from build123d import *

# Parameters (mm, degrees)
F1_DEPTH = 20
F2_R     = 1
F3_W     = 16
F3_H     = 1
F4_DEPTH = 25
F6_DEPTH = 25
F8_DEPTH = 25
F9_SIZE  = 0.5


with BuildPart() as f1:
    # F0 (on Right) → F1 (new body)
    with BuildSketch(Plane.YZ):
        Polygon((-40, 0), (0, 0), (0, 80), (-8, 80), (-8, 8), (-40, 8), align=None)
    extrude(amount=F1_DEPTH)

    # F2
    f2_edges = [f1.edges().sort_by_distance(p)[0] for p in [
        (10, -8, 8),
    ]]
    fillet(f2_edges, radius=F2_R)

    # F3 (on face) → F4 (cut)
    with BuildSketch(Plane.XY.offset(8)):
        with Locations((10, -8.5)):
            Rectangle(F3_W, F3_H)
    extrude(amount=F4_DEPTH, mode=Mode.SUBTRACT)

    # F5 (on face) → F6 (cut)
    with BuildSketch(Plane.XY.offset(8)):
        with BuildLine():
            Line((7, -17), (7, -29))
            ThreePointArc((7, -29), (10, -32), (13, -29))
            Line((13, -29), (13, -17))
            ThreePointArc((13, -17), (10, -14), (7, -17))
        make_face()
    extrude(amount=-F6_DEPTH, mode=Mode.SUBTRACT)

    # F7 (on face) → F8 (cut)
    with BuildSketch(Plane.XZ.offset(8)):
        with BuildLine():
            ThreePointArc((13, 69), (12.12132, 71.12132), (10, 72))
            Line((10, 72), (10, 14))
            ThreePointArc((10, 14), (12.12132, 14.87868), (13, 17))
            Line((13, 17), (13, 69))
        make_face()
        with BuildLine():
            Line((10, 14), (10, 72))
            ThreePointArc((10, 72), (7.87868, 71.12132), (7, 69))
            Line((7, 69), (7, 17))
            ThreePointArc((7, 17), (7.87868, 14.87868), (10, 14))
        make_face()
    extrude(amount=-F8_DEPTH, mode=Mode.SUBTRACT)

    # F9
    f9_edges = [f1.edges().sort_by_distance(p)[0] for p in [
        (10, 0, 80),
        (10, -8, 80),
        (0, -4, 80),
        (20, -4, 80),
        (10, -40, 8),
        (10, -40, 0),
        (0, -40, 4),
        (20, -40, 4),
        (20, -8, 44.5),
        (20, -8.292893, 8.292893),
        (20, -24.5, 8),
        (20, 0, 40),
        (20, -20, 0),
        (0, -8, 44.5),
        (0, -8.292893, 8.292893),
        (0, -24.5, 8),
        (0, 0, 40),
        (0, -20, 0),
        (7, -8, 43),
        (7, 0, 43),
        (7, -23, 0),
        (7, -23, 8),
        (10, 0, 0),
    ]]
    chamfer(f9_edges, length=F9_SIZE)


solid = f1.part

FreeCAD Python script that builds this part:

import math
import FreeCAD as App
import Part
import Sketcher

V = App.Vector
Q = App.Units.Quantity


def edges_at(feature, points):
    """Names of the edges that pass closest to the given points."""
    edges = feature.Shape.Edges
    near = lambda p: min(range(len(edges)), key=lambda i: edges[i].distToShape(Part.Vertex(*p))[0])
    return sorted({f"Edge{near(p) + 1}" for p in points})

doc = App.newDocument("Part")
body = doc.addObject("PartDesign::Body", "Body")

sketch1 = doc.addObject("Sketcher::SketchObject", "Sketch")
body.addObject(sketch1)
sketch1.AttachmentSupport = (doc.YZ_Plane, [""])
sketch1.MapMode = "FlatFace"
sketch1.addGeometry([
    Part.LineSegment(V(-40, 0, 0), V(0, 0, 0)),
    Part.LineSegment(V(0, 0, 0), V(0, 80, 0)),
    Part.LineSegment(V(0, 80, 0), V(-8, 80, 0)),
    Part.LineSegment(V(-8, 80, 0), V(-8, 8, 0)),
    Part.LineSegment(V(-8, 8, 0), V(-40, 8, 0)),
    Part.LineSegment(V(-40, 8, 0), V(-40, 0, 0)),
], False)
sketch1.addConstraint([
    Sketcher.Constraint("Coincident", 0, 2, 1, 1),
    Sketcher.Constraint("Coincident", 1, 2, 2, 1),
    Sketcher.Constraint("Coincident", 2, 2, 3, 1),
    Sketcher.Constraint("Coincident", 3, 2, 4, 1),
    Sketcher.Constraint("Coincident", 4, 2, 5, 1),
    Sketcher.Constraint("Coincident", 5, 2, 0, 1),
    Sketcher.Constraint("Horizontal", 0),
    Sketcher.Constraint("Vertical", 1),
    Sketcher.Constraint("Horizontal", 2),
    Sketcher.Constraint("Vertical", 3),
    Sketcher.Constraint("Horizontal", 4),
    Sketcher.Constraint("Vertical", 5),
    Sketcher.Constraint("Coincident", 0, 2, -1, 1),
    Sketcher.Constraint("Equal", 2, 5),
    Sketcher.Constraint("DistanceX", 0, 1, 0, 2, Q("40 mm")),
    Sketcher.Constraint("DistanceX", 2, 2, 2, 1, Q("8 mm")),
    Sketcher.Constraint("DistanceY", 1, 1, 1, 2, Q("80 mm")),
])
pad1 = doc.addObject("PartDesign::Pad", "Pad")
body.addObject(pad1)
pad1.Profile = sketch1
pad1.Length = 20
doc.recompute()

fillet = doc.addObject("PartDesign::Fillet", "Fillet")
body.addObject(fillet)
fillet.Base = (pad1, edges_at(pad1, [(10, -8, 8)]))
fillet.Radius = 1

sketch2 = doc.addObject("Sketcher::SketchObject", "Sketch001")
body.addObject(sketch2)
sketch2.AttachmentSupport = (doc.XY_Plane, [""])
sketch2.MapMode = "FlatFace"
sketch2.AttachmentOffset = App.Placement(V(0, 0, 8), App.Rotation())
sketch2.addGeometry([
    Part.LineSegment(V(2, -8, 0), V(2, -9, 0)),
    Part.LineSegment(V(2, -9, 0), V(18, -9, 0)),
    Part.LineSegment(V(18, -9, 0), V(18, -8, 0)),
    Part.LineSegment(V(18, -8, 0), V(2, -8, 0)),
], False)
sketch2.addConstraint([
    Sketcher.Constraint("Coincident", 0, 2, 1, 1),
    Sketcher.Constraint("Coincident", 1, 2, 2, 1),
    Sketcher.Constraint("Coincident", 2, 2, 3, 1),
    Sketcher.Constraint("Coincident", 3, 2, 0, 1),
    Sketcher.Constraint("Vertical", 0),
    Sketcher.Constraint("Horizontal", 1),
    Sketcher.Constraint("Vertical", 2),
    Sketcher.Constraint("Horizontal", 3),
    Sketcher.Constraint("DistanceX", 1, 1, 1, 2, Q("16 mm")),
    Sketcher.Constraint("DistanceY", 0, 2, 0, 1, Q("1 mm")),
    Sketcher.Constraint("DistanceX", -1, 1, 0, 2, Q("2 mm")),
    Sketcher.Constraint("DistanceY", 0, 2, -1, 1, Q("9 mm")),
])
pocket1 = doc.addObject("PartDesign::Pocket", "Pocket")
body.addObject(pocket1)
pocket1.Profile = sketch2
pocket1.Length = 25
pocket1.Reversed = True

sketch3 = doc.addObject("Sketcher::SketchObject", "Sketch002")
body.addObject(sketch3)
sketch3.AttachmentSupport = (doc.XY_Plane, [""])
sketch3.MapMode = "FlatFace"
sketch3.AttachmentOffset = App.Placement(V(0, 0, 8), App.Rotation())
sketch3.addGeometry([
    Part.LineSegment(V(7, -17, 0), V(7, -29, 0)),
    Part.ArcOfCircle(Part.Circle(V(10, -29, 0), V(0, 0, 1), 3), math.radians(180), math.radians(360)),
    Part.LineSegment(V(13, -29, 0), V(13, -17, 0)),
    Part.ArcOfCircle(Part.Circle(V(10, -17, 0), V(0, 0, 1), 3), math.radians(0), math.radians(180)),
], False)
sketch3.addConstraint([
    Sketcher.Constraint("Tangent", 0, 2, 1, 1),
    Sketcher.Constraint("Tangent", 1, 2, 2, 1),
    Sketcher.Constraint("Tangent", 2, 2, 3, 1),
    Sketcher.Constraint("Tangent", 3, 2, 0, 1),
    Sketcher.Constraint("Vertical", 0),
    Sketcher.Constraint("Vertical", 2),
    Sketcher.Constraint("Radius", 1, Q("3 mm")),
    Sketcher.Constraint("DistanceY", 0, 2, 0, 1, Q("12 mm")),
    Sketcher.Constraint("DistanceX", -1, 1, 1, 3, Q("10 mm")),
    Sketcher.Constraint("DistanceY", 1, 3, -1, 1, Q("29 mm")),
])
pocket2 = doc.addObject("PartDesign::Pocket", "Pocket001")
body.addObject(pocket2)
pocket2.Profile = sketch3
pocket2.Length = 25

sketch4 = doc.addObject("Sketcher::SketchObject", "Sketch003")
body.addObject(sketch4)
sketch4.AttachmentSupport = (doc.XZ_Plane, [""])
sketch4.MapMode = "FlatFace"
sketch4.AttachmentOffset = App.Placement(V(0, 0, 8), App.Rotation())
sketch4.addGeometry([
    Part.ArcOfCircle(Part.Circle(V(9.999999, 68.999999, 0), V(0, 0, 1), 3.000001), math.radians(0.000022), math.radians(89.999978)),
    Part.ArcOfCircle(Part.Circle(V(10.000001, 68.999999, 0), V(0, 0, 1), 3.000001), math.radians(90.000022), math.radians(179.999978)),
    Part.LineSegment(V(7, 69, 0), V(7, 17, 0)),
    Part.ArcOfCircle(Part.Circle(V(10.000001, 17.000001, 0), V(0, 0, 1), 3.000001), math.radians(-179.999978), math.radians(-90.000022)),
    Part.ArcOfCircle(Part.Circle(V(9.999999, 17.000001, 0), V(0, 0, 1), 3.000001), math.radians(-89.999978), math.radians(-0.000022)),
    Part.LineSegment(V(13, 17, 0), V(13, 69, 0)),
], False)
sketch4.addConstraint([
    Sketcher.Constraint("Tangent", 0, 2, 1, 1),
    Sketcher.Constraint("Tangent", 1, 2, 2, 1),
    Sketcher.Constraint("Tangent", 2, 2, 3, 1),
    Sketcher.Constraint("Tangent", 3, 2, 4, 1),
    Sketcher.Constraint("Tangent", 4, 2, 5, 1),
    Sketcher.Constraint("Tangent", 5, 2, 0, 1),
    Sketcher.Constraint("Vertical", 2),
    Sketcher.Constraint("Vertical", 5),
    Sketcher.Constraint("Equal", 0, 1),
    Sketcher.Constraint("Equal", 1, 3),
    Sketcher.Constraint("Vertical", 4, 3, 0, 2),
    Sketcher.Constraint("Vertical", 0, 2, 3, 2),
    Sketcher.Constraint("Radius", 0, Q("3.000001 mm")),
    Sketcher.Constraint("DistanceY", 2, 2, 2, 1, Q("52 mm")),
    Sketcher.Constraint("DistanceX", -1, 1, 0, 3, Q("9.999999 mm")),
    Sketcher.Constraint("DistanceY", -1, 1, 0, 3, Q("68.999999 mm")),
])
pocket3 = doc.addObject("PartDesign::Pocket", "Pocket002")
body.addObject(pocket3)
pocket3.Profile = sketch4
pocket3.Length = 25
doc.recompute()

chamfer = doc.addObject("PartDesign::Chamfer", "Chamfer")
body.addObject(chamfer)
chamfer.Base = (pocket3, edges_at(pocket3, [
    (10, 0, 80),
    (10, -8, 80),
    (0, -4, 80),
    (20, -4, 80),
    (10, -40, 8),
    (10, -40, 0),
    (0, -40, 4),
    (20, -40, 4),
    (20, -8, 44.5),
    (20, -8.293, 8.293),
    (20, -24.5, 8),
    (20, 0, 40),
    (20, -20, 0),
    (0, -8, 44.5),
    (0, -8.293, 8.293),
    (0, -24.5, 8),
    (0, 0, 40),
    (0, -20, 0),
    (7, -8, 43),
    (7, 0, 43),
    (7, -23, 0),
    (7, -23, 8),
    (10, 0, 0),
]))
chamfer.Size = 0.5

doc.recompute()
